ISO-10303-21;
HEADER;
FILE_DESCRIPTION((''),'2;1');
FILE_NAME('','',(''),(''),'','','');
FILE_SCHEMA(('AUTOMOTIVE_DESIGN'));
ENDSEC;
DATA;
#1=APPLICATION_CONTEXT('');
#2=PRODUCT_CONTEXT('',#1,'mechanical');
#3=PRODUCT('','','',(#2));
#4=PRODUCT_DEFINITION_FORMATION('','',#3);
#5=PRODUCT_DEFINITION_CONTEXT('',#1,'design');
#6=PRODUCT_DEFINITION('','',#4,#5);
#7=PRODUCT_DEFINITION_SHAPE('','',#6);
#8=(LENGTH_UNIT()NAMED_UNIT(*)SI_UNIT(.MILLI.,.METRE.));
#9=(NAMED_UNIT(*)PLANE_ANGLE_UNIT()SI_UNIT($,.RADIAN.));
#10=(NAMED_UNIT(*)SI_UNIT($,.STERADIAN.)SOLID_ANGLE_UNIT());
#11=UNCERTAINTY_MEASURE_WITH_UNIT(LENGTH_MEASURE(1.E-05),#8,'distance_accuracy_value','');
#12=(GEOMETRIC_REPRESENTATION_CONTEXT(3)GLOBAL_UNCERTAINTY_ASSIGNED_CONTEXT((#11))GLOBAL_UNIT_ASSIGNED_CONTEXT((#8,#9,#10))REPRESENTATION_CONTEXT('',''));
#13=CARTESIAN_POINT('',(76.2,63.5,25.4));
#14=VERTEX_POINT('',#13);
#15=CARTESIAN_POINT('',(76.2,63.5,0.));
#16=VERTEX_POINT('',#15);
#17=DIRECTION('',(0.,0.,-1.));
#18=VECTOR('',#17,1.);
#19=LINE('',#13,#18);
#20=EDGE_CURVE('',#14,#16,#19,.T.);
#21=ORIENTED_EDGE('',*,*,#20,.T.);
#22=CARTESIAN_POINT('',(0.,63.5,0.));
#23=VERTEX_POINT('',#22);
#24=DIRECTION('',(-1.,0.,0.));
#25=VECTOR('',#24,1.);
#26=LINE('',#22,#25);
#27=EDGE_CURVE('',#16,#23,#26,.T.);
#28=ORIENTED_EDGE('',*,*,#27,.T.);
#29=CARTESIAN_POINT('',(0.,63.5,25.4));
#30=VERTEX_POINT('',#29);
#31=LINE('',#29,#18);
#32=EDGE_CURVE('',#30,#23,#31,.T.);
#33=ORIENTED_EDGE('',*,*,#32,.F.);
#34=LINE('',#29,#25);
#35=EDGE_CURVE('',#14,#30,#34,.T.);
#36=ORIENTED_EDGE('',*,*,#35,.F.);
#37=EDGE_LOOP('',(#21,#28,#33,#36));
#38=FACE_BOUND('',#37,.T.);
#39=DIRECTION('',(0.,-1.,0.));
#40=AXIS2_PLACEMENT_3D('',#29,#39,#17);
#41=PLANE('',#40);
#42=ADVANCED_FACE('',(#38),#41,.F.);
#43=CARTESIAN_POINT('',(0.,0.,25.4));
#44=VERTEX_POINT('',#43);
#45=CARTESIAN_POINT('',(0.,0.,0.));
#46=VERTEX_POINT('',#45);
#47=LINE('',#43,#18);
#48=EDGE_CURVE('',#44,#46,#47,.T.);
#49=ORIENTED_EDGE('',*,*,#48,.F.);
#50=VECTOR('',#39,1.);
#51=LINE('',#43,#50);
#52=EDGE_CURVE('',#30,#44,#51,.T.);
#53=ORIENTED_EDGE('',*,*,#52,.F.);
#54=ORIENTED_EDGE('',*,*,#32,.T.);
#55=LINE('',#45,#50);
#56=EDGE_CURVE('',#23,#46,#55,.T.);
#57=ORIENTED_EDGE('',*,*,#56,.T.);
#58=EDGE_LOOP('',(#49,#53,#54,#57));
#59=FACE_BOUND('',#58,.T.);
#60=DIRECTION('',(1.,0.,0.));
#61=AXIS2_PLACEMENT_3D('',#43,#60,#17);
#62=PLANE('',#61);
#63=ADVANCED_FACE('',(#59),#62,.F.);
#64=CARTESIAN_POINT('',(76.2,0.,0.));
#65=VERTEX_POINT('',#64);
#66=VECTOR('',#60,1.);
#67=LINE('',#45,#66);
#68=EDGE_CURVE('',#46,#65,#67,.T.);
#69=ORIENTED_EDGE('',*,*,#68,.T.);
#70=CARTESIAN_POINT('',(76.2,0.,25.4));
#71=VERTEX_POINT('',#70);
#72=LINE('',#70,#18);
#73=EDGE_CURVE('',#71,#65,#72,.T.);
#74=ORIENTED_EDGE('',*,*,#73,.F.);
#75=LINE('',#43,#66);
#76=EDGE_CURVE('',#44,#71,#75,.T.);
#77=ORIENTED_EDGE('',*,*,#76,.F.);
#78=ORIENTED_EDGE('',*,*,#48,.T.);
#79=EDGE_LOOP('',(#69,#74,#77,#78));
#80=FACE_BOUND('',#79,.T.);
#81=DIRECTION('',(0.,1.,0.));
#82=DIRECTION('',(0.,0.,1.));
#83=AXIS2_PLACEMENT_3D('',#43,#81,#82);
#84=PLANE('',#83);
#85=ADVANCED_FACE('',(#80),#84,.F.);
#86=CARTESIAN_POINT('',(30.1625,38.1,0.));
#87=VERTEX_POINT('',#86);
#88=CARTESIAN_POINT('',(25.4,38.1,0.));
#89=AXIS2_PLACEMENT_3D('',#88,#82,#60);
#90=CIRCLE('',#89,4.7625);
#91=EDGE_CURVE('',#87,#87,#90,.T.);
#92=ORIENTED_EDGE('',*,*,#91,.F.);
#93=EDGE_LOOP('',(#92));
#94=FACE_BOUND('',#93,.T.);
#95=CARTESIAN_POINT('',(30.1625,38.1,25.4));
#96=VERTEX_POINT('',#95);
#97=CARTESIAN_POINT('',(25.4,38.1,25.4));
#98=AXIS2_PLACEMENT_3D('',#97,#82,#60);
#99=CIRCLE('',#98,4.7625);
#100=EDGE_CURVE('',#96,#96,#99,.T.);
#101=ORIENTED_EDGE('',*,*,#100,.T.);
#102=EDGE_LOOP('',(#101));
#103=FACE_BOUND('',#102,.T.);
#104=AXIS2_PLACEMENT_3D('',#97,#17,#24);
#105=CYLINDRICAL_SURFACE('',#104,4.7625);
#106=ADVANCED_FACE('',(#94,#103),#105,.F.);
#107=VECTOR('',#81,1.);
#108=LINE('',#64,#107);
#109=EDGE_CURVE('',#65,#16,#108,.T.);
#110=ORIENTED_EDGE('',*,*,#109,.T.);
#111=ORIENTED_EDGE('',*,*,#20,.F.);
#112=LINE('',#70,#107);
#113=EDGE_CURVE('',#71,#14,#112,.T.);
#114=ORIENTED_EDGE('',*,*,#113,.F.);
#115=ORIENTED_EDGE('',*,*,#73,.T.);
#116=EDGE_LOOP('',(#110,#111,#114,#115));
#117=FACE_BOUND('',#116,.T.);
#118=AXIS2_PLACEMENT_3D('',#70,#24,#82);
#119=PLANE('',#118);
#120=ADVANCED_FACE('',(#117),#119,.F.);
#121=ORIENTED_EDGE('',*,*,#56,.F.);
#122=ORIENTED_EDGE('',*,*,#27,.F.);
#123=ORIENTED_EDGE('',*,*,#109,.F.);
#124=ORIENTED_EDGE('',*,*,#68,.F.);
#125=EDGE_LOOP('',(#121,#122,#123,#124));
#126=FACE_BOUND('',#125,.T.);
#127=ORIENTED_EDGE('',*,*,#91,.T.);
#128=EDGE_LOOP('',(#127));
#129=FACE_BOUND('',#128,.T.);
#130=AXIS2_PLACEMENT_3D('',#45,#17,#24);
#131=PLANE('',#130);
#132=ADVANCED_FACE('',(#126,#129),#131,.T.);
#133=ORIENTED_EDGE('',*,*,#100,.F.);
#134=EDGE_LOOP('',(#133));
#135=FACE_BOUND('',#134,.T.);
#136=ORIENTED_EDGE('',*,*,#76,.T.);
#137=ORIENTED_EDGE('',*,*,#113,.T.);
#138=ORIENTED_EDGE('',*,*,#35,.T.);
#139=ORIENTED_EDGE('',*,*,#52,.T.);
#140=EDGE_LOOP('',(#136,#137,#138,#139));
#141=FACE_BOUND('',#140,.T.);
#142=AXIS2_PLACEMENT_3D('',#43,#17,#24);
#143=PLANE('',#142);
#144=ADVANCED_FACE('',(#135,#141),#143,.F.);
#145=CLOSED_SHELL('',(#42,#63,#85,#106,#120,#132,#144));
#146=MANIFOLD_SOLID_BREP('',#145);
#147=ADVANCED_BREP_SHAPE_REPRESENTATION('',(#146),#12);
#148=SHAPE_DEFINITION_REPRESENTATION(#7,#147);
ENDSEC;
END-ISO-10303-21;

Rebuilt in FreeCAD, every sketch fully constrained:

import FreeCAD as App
import Part
import Sketcher
Q = App.Units.Quantity

doc = App.newDocument("Part")
body = doc.addObject("PartDesign::Body", "Body")

sketch1 = body.newObject("Sketcher::SketchObject", "Sketch")
sketch1.AttachmentSupport = (doc.getObject("XY_Plane"), [""])
sketch1.MapMode = "FlatFace"
sketch1.addGeometry([
    Part.LineSegment(App.Vector(0, 63.5, 0), App.Vector(0, 0, 0)),
    Part.LineSegment(App.Vector(0, 0, 0), App.Vector(76.2, 0, 0)),
    Part.LineSegment(App.Vector(76.2, 0, 0), App.Vector(76.2, 63.5, 0)),
    Part.LineSegment(App.Vector(76.2, 63.5, 0), App.Vector(0, 63.5, 0)),
    Part.Circle(App.Vector(25.4, 38.1, 0), App.Vector(0, 0, 1), 4.8),
], False)
sketch1.addConstraint([
    Sketcher.Constraint("Coincident", 0, 2, 1, 1),
    Sketcher.Constraint("Coincident", 1, 2, 2, 1),
    Sketcher.Constraint("Coincident", 2, 2, 3, 1),
    Sketcher.Constraint("Coincident", 3, 2, 0, 1),
    Sketcher.Constraint("Vertical", 0),
    Sketcher.Constraint("Horizontal", 1),
    Sketcher.Constraint("Vertical", 2),
    Sketcher.Constraint("Horizontal", 3),
    Sketcher.Constraint("Coincident", 0, 2, -1, 1),
    Sketcher.Constraint("DistanceX", 1, 1, 1, 2, Q("3 in")),
    Sketcher.Constraint("Diameter", 4, Q("0.375 in")),
    Sketcher.Constraint("DistanceY", 0, 2, 0, 1, Q("2.5 in")),
    Sketcher.Constraint("DistanceX", -1, 1, 4, 3, Q("1 in")),
    Sketcher.Constraint("DistanceY", 4, 3, 2, 2, Q("1 in")),
])
pad1 = body.newObject("PartDesign::Pad", "Pad")
pad1.Profile = sketch1
pad1.Length = Q("1 in")

doc.recompute()
